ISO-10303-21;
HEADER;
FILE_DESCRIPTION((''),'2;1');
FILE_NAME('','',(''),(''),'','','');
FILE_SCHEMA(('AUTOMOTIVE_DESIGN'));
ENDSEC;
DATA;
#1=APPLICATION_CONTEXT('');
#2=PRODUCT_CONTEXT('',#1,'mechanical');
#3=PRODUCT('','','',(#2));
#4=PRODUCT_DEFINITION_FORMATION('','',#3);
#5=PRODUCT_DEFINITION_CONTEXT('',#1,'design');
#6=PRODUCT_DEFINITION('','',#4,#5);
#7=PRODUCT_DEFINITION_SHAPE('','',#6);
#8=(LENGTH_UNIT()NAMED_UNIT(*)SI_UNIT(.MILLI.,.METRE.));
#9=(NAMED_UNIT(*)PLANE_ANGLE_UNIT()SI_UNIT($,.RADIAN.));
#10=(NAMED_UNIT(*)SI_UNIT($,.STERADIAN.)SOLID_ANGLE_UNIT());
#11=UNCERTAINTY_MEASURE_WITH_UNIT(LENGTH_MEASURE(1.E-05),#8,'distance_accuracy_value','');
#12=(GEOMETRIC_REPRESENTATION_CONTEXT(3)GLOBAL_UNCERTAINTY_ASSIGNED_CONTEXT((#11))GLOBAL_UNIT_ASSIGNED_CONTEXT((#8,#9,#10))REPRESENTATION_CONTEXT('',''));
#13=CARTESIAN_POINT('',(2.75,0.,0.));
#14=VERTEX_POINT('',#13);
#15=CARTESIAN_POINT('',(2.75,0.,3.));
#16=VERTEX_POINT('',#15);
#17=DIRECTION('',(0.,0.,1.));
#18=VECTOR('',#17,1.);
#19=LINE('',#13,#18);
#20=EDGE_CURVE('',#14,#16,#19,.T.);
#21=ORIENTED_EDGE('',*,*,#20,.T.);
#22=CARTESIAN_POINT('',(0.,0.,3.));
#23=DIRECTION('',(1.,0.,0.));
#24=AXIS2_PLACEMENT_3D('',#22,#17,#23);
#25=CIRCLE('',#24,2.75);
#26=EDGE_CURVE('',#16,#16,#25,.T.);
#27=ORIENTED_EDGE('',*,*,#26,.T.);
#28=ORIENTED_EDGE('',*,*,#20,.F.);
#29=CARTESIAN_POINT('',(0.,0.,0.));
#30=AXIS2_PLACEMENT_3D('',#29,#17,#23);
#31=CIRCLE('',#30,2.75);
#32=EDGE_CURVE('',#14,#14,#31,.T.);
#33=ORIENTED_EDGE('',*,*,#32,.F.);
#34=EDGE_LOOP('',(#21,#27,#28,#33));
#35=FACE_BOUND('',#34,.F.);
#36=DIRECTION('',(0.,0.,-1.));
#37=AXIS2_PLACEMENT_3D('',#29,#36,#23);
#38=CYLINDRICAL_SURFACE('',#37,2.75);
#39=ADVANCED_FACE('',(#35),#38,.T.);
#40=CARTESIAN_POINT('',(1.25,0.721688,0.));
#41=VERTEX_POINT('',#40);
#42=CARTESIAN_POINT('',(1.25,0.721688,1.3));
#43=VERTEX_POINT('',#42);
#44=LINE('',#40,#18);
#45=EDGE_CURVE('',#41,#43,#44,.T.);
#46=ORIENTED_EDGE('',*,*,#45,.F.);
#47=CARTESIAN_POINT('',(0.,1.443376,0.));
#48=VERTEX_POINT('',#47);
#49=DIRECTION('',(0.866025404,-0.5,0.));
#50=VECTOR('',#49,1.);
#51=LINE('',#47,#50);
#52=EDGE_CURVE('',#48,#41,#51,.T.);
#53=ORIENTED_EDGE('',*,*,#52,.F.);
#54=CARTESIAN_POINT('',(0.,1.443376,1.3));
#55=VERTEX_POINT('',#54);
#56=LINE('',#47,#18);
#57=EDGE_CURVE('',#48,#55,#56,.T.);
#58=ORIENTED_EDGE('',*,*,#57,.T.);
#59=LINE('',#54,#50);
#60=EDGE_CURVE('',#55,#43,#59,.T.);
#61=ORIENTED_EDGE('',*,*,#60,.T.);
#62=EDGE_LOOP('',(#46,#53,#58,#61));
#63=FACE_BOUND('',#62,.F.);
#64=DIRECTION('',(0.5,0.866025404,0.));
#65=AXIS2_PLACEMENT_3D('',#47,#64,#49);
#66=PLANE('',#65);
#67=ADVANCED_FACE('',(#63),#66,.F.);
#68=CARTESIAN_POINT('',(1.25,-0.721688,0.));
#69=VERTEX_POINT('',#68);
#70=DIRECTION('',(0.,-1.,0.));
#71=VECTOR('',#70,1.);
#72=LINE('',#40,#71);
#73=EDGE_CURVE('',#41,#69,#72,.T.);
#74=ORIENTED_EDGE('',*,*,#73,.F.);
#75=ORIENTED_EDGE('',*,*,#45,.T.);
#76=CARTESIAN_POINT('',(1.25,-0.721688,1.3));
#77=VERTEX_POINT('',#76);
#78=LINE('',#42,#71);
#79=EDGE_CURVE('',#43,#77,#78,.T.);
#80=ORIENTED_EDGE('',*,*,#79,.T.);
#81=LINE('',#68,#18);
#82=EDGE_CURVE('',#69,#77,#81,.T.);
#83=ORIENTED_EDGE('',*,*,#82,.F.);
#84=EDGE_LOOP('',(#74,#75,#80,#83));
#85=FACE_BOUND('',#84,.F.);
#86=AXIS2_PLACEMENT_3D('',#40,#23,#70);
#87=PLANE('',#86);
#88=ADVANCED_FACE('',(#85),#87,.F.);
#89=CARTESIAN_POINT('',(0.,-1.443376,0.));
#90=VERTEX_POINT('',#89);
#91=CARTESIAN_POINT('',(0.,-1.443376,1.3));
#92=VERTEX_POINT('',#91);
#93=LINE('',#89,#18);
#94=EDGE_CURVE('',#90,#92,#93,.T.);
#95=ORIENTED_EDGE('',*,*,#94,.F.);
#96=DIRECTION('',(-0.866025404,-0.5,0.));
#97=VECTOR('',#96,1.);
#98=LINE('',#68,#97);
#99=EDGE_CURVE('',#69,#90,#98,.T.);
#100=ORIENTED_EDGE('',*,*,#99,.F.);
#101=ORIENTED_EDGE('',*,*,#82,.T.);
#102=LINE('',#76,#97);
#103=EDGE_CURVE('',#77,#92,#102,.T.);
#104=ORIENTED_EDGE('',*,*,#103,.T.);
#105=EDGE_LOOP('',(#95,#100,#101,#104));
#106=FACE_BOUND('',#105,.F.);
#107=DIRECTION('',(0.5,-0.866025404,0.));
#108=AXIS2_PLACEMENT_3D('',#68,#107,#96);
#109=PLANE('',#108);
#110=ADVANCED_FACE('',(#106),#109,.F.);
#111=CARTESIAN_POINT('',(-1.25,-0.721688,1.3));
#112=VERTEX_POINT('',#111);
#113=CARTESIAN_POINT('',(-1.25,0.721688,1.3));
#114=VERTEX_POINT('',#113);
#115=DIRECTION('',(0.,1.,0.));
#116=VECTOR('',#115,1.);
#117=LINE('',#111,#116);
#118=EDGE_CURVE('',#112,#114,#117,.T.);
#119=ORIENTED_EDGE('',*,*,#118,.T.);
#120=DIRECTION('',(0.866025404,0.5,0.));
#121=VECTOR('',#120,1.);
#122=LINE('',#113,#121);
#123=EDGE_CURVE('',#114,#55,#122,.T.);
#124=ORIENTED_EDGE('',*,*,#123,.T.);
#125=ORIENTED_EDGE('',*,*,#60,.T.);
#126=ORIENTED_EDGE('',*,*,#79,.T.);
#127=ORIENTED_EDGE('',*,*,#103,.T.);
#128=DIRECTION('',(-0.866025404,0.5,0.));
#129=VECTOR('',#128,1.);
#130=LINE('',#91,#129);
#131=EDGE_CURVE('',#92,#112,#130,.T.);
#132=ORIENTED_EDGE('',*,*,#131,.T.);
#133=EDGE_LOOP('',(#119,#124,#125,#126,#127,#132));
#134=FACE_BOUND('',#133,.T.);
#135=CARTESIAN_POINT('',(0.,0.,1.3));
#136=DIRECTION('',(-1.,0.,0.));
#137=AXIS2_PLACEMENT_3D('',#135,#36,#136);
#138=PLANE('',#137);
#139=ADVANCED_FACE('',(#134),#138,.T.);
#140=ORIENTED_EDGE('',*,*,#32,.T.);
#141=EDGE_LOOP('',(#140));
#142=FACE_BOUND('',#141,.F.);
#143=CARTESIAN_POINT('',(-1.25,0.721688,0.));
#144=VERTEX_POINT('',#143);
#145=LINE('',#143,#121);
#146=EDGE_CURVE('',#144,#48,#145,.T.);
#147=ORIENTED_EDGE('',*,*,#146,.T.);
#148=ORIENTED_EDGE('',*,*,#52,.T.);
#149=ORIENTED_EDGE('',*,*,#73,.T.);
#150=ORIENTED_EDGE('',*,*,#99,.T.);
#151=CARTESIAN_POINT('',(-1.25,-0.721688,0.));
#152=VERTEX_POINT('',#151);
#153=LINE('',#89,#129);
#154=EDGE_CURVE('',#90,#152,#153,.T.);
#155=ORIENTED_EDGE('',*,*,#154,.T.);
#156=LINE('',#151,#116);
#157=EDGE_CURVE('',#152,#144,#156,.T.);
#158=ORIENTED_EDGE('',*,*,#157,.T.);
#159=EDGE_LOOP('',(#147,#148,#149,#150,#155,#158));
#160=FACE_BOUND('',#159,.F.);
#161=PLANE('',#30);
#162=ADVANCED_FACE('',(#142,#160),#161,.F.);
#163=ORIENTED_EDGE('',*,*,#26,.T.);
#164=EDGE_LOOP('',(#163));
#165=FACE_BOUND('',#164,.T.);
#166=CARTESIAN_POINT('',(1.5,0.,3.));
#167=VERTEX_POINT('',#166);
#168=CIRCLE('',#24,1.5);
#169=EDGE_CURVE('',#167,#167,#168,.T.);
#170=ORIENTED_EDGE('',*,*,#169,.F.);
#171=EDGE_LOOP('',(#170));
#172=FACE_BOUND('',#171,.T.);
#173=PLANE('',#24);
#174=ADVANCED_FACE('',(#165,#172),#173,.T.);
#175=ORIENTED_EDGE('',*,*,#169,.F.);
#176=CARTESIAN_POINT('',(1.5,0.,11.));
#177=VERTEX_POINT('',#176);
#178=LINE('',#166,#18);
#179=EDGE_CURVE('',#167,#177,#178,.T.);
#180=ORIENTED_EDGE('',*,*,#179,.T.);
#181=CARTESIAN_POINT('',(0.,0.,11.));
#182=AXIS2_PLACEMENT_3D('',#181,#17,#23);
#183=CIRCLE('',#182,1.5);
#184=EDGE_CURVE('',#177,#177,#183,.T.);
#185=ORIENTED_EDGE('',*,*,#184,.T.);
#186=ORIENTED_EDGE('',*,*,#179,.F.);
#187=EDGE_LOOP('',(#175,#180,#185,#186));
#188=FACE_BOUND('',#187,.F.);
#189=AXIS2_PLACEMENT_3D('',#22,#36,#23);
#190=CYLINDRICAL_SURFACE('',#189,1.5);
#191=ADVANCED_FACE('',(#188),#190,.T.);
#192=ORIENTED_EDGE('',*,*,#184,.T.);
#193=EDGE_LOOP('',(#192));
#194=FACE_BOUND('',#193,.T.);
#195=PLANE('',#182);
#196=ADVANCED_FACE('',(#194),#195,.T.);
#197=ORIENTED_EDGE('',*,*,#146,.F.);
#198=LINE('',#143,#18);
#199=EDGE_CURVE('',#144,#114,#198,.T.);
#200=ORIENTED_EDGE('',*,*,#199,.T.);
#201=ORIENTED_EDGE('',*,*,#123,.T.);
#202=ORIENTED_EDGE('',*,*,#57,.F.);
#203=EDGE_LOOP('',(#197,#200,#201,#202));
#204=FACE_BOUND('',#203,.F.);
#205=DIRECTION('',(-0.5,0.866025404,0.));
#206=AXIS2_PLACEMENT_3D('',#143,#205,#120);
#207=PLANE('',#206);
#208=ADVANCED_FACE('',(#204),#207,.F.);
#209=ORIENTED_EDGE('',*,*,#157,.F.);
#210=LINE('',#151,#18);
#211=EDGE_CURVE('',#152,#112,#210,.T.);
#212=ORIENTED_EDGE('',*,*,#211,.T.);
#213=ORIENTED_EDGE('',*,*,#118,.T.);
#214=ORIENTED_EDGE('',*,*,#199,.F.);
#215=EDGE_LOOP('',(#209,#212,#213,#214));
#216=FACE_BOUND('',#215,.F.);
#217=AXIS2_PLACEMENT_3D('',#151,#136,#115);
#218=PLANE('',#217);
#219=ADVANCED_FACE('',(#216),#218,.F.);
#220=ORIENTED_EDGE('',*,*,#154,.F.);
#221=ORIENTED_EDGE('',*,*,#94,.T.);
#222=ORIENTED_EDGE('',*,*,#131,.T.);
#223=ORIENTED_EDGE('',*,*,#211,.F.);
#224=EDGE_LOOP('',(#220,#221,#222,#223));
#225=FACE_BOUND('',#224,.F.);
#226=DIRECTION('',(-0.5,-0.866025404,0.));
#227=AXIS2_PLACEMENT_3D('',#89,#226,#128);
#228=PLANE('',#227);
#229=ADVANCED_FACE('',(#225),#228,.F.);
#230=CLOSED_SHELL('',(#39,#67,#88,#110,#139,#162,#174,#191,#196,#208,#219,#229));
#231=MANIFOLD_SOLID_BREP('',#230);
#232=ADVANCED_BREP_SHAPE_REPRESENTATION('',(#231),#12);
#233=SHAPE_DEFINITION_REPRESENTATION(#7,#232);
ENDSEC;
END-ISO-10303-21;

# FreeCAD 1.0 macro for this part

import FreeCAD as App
import Part
import Sketcher
Q = App.Units.Quantity


def add_polygon(sketch, points):
    """Adds a closed chain of lines whose ends are joined by coincident constraints."""
    first, n = sketch.GeometryCount, len(points)
    for a, b in zip(points, points[1:] + points[:1]):
        sketch.addGeometry(Part.LineSegment(App.Vector(*a, 0), App.Vector(*b, 0)), False)
    for i in range(n):
        sketch.addConstraint(Sketcher.Constraint("Coincident", first + i, 2, first + (i + 1) % n, 1))

doc = App.newDocument("Part")
body = doc.addObject("PartDesign::Body", "Body")

# Sketch on XY plane
sketch1 = doc.addObject("Sketcher::SketchObject", "Sketch")
body.addObject(sketch1)
sketch1.AttachmentSupport = (doc.XY_Plane, [""])
sketch1.MapMode = "FlatFace"
sketch1.addGeometry(Part.Circle(App.Vector(0, 0, 0), App.Vector(0, 0, 1), 2.8), False)
sketch1.addConstraint([
    Sketcher.Constraint("Coincident", 0, 3, -1, 1),
    Sketcher.Constraint("Diameter", 0, Q("5.5 mm")),
])
pad1 = doc.addObject("PartDesign::Pad", "Pad")
body.addObject(pad1)
pad1.Profile = sketch1
pad1.Length = 3

# Sketch on XY plane
sketch2 = doc.addObject("Sketcher::SketchObject", "Sketch001")
body.addObject(sketch2)
sketch2.AttachmentSupport = (doc.XY_Plane, [""])
sketch2.MapMode = "FlatFace"
add_polygon(sketch2, [(1.2, 0.7), (1.2, -0.7), (0, -1.4), (-1.2, -0.7), (-1.2, 0.7), (0, 1.4)])  # lines 0-5
sketch2.addConstraint([
    Sketcher.Constraint("Vertical", 0),
    Sketcher.Constraint("Vertical", 3),
    Sketcher.Constraint("Symmetric", 0, 2, 3, 2, -1, 1),
    Sketcher.Constraint("Symmetric", 1, 2, 4, 2, -1, 1),
    Sketcher.Constraint("PointOnObject", 1, 2, -2),
    Sketcher.Constraint("Parallel", 2, 5),
    Sketcher.Constraint("Horizontal", 0, 2, 2, 2),
    Sketcher.Constraint("Angle", 1, Q("-150 deg")),
    Sketcher.Constraint("DistanceX", 2, 2, 0, 2, Q("2.5 mm")),
    Sketcher.Constraint("DistanceY", 0, 2, 0, 1, Q("1.443376 mm")),
])
pocket1 = doc.addObject("PartDesign::Pocket", "Pocket")
body.addObject(pocket1)
pocket1.Profile = sketch2
pocket1.Length = 1.3
pocket1.Reversed = True

# Sketch on XY plane
sketch3 = doc.addObject("Sketcher::SketchObject", "Sketch002")
body.addObject(sketch3)
sketch3.AttachmentSupport = (doc.XY_Plane, [""])
sketch3.MapMode = "FlatFace"
sketch3.AttachmentOffset = App.Placement(App.Vector(0, 0, 3), App.Rotation())
sketch3.addGeometry(Part.Circle(App.Vector(0, 0, 0), App.Vector(0, 0, 1), 1.5), False)
sketch3.addConstraint([
    Sketcher.Constraint("Coincident", 0, 3, -1, 1),
    Sketcher.Constraint("Diameter", 0, Q("3 mm")),
])
pad2 = doc.addObject("PartDesign::Pad", "Pad001")
body.addObject(pad2)
pad2.Profile = sketch3
pad2.Length = 8

doc.recompute()
